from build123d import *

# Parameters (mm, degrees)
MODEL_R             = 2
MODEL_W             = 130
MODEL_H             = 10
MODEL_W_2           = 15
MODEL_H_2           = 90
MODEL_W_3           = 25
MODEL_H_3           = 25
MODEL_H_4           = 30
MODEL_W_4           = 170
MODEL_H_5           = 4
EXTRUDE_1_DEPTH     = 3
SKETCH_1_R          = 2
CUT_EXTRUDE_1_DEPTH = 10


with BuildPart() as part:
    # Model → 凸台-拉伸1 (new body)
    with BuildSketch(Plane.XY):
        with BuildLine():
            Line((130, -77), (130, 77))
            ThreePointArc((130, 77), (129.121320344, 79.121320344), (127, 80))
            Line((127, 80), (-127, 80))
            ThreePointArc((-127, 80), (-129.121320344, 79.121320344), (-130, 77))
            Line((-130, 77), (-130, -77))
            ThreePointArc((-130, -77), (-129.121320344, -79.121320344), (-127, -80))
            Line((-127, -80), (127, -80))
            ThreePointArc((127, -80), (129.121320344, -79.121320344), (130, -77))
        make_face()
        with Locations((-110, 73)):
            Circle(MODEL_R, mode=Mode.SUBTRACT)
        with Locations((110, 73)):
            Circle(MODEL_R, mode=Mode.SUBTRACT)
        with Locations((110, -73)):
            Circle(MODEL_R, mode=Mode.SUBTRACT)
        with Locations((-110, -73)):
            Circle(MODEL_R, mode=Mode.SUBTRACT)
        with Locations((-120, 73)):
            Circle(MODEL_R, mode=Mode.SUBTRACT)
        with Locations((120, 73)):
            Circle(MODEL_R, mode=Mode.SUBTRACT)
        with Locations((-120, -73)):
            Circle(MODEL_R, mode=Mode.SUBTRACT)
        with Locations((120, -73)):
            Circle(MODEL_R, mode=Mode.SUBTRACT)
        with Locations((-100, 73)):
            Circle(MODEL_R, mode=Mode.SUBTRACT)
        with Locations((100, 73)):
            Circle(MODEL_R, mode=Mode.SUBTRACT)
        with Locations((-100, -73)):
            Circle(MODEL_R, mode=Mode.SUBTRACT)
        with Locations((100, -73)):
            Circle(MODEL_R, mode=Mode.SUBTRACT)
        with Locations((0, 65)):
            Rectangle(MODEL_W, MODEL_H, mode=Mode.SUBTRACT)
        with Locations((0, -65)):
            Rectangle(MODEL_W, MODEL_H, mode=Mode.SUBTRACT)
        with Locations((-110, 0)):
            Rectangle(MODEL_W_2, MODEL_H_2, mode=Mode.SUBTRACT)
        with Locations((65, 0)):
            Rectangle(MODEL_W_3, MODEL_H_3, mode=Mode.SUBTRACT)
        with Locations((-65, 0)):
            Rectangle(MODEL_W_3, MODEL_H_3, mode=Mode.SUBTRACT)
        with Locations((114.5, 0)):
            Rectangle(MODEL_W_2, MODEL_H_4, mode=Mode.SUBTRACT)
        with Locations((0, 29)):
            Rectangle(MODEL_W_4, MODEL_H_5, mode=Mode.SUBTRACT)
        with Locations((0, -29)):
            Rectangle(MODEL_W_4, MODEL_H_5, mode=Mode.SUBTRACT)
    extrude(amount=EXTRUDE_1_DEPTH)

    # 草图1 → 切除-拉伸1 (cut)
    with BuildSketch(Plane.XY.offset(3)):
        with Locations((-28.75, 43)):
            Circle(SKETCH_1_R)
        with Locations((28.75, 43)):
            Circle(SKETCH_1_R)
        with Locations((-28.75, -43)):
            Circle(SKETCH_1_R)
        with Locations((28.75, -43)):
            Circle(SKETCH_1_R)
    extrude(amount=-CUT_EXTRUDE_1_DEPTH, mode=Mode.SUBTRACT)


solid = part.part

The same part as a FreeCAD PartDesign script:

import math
import FreeCAD as App
import Part
import Sketcher
Q = App.Units.Quantity

doc = App.newDocument("Part")
params = doc.addObject("Spreadsheet::Sheet", "Params")
for row, (alias, value) in enumerate([
    ("sketch1_diameter", "4 mm"),
    ("sketch1_radius", "3 mm"),
    ("sketch1_width", "254 mm"),
    ("sketch1_width2", "130 mm"),
    ("sketch1_width3", "170 mm"),
    ("pad1_length", "3 mm"),
    ("sketch2_diameter", "4 mm"),
    ("pocket1_length", "10 mm"),
], start=1):
    params.set(f"A{row}", alias)
    params.set(f"B{row}", "=" + value)
    params.setAlias(f"B{row}", alias)

body = doc.addObject("PartDesign::Body", "Body")

# Sketch on XY plane
sketch1 = body.newObject("Sketcher::SketchObject", "Sketch")
sketch1.AttachmentSupport = (doc.getObject("XY_Plane"), [""])
sketch1.MapMode = "FlatFace"
sketch1.addGeometry(Part.LineSegment(App.Vector(130, -77, 0), App.Vector(130, 77, 0)), False)
sketch1.addGeometry(Part.ArcOfCircle(Part.Circle(App.Vector(127, 77, 0), App.Vector(0, 0, 1), 3), math.radians(0), math.radians(90)), False)
sketch1.addGeometry(Part.LineSegment(App.Vector(127, 80, 0), App.Vector(-127, 80, 0)), False)
sketch1.addGeometry(Part.ArcOfCircle(Part.Circle(App.Vector(-127, 77, 0), App.Vector(0, 0, 1), 3), math.radians(90), math.radians(180)), False)
sketch1.addGeometry(Part.LineSegment(App.Vector(-130, 77, 0), App.Vector(-130, -77, 0)), False)
sketch1.addGeometry(Part.ArcOfCircle(Part.Circle(App.Vector(-127, -77, 0), App.Vector(0, 0, 1), 3), math.radians(180), math.radians(270)), False)
sketch1.addGeometry(Part.LineSegment(App.Vector(-127, -80, 0), App.Vector(127, -80, 0)), False)
sketch1.addGeometry(Part.ArcOfCircle(Part.Circle(App.Vector(127, -77, 0), App.Vector(0, 0, 1), 3), math.radians(-90), math.radians(0)), False)
sketch1.addGeometry(Part.Circle(App.Vector(-120, -73, 0), App.Vector(0, 0, 1), 2), False)
sketch1.addGeometry(Part.Circle(App.Vector(-110, -73, 0), App.Vector(0, 0, 1), 2), False)
sketch1.addGeometry(Part.Circle(App.Vector(-100, -73, 0), App.Vector(0, 0, 1), 2), False)
sketch1.addGeometry(Part.LineSegment(App.Vector(65, -70, 0), App.Vector(-65, -70, 0)), False)
sketch1.addGeometry(Part.LineSegment(App.Vector(-65, -70, 0), App.Vector(-65, -60, 0)), False)
sketch1.addGeometry(Part.LineSegment(App.Vector(-65, -60, 0), App.Vector(65, -60, 0)), False)
sketch1.addGeometry(Part.LineSegment(App.Vector(65, -60, 0), App.Vector(65, -70, 0)), False)
sketch1.addGeometry(Part.Circle(App.Vector(100, -73, 0), App.Vector(0, 0, 1), 2), False)
sketch1.addGeometry(Part.Circle(App.Vector(110, -73, 0), App.Vector(0, 0, 1), 2), False)
sketch1.addGeometry(Part.Circle(App.Vector(120, -73, 0), App.Vector(0, 0, 1), 2), False)
sketch1.addGeometry(Part.LineSegment(App.Vector(85, -31, 0), App.Vector(-85, -31, 0)), False)
sketch1.addGeometry(Part.LineSegment(App.Vector(-85, -31, 0), App.Vector(-85, -27, 0)), False)
sketch1.addGeometry(Part.LineSegment(App.Vector(-85, -27, 0), App.Vector(85, -27, 0)), False)
sketch1.addGeometry(Part.LineSegment(App.Vector(85, -27, 0), App.Vector(85, -31, 0)), False)
sketch1.addGeometry(Part.LineSegment(App.Vector(-102.5, -45, 0), App.Vector(-117.5, -45, 0)), False)
sketch1.addGeometry(Part.LineSegment(App.Vector(-117.5, -45, 0), App.Vector(-117.5, 45, 0)), False)
sketch1.addGeometry(Part.LineSegment(App.Vector(-117.5, 45, 0), App.Vector(-102.5, 45, 0)), False)
sketch1.addGeometry(Part.LineSegment(App.Vector(-102.5, 45, 0), App.Vector(-102.5, -45, 0)), False)
sketch1.addGeometry(Part.LineSegment(App.Vector(-52.5, -12.5, 0), App.Vector(-77.5, -12.5, 0)), False)
sketch1.addGeometry(Part.LineSegment(App.Vector(-77.5, -12.5, 0), App.Vector(-77.5, 12.5, 0)), False)
sketch1.addGeometry(Part.LineSegment(App.Vector(-77.5, 12.5, 0), App.Vector(-52.5, 12.5, 0)), False)
sketch1.addGeometry(Part.LineSegment(App.Vector(-52.5, 12.5, 0), App.Vector(-52.5, -12.5, 0)), False)
sketch1.addGeometry(Part.Circle(App.Vector(-120, 73, 0), App.Vector(0, 0, 1), 2), False)
sketch1.addGeometry(Part.Circle(App.Vector(-110, 73, 0), App.Vector(0, 0, 1), 2), False)
sketch1.addGeometry(Part.Circle(App.Vector(-100, 73, 0), App.Vector(0, 0, 1), 2), False)
sketch1.addGeometry(Part.LineSegment(App.Vector(85, 27, 0), App.Vector(-85, 27, 0)), False)
sketch1.addGeometry(Part.LineSegment(App.Vector(-85, 27, 0), App.Vector(-85, 31, 0)), False)
sketch1.addGeometry(Part.LineSegment(App.Vector(-85, 31, 0), App.Vector(85, 31, 0)), False)
sketch1.addGeometry(Part.LineSegment(App.Vector(85, 31, 0), App.Vector(85, 27, 0)), False)
sketch1.addGeometry(Part.LineSegment(App.Vector(77.5, -12.5, 0), App.Vector(52.5, -12.5, 0)), False)
sketch1.addGeometry(Part.LineSegment(App.Vector(52.5, -12.5, 0), App.Vector(52.5, 12.5, 0)), False)
sketch1.addGeometry(Part.LineSegment(App.Vector(52.5, 12.5, 0), App.Vector(77.5, 12.5, 0)), False)
sketch1.addGeometry(Part.LineSegment(App.Vector(77.5, 12.5, 0), App.Vector(77.5, -12.5, 0)), False)
sketch1.addGeometry(Part.LineSegment(App.Vector(122, -15, 0), App.Vector(107, -15, 0)), False)
sketch1.addGeometry(Part.LineSegment(App.Vector(107, -15, 0), App.Vector(107, 15, 0)), False)
sketch1.addGeometry(Part.LineSegment(App.Vector(107, 15, 0), App.Vector(122, 15, 0)), False)
sketch1.addGeometry(Part.LineSegment(App.Vector(122, 15, 0), App.Vector(122, -15, 0)), False)
sketch1.addGeometry(Part.LineSegment(App.Vector(65, 60, 0), App.Vector(-65, 60, 0)), False)
sketch1.addGeometry(Part.LineSegment(App.Vector(-65, 60, 0), App.Vector(-65, 70, 0)), False)
sketch1.addGeometry(Part.LineSegment(App.Vector(-65, 70, 0), App.Vector(65, 70, 0)), False)
sketch1.addGeometry(Part.LineSegment(App.Vector(65, 70, 0), App.Vector(65, 60, 0)), False)
sketch1.addGeometry(Part.Circle(App.Vector(100, 73, 0), App.Vector(0, 0, 1), 2), False)
sketch1.addGeometry(Part.Circle(App.Vector(110, 73, 0), App.Vector(0, 0, 1), 2), False)
sketch1.addGeometry(Part.Circle(App.Vector(120, 73, 0), App.Vector(0, 0, 1), 2), False)
sketch1.addConstraint(Sketcher.Constraint("Tangent", 0, 2, 1, 1))
sketch1.addConstraint(Sketcher.Constraint("Tangent", 1, 2, 2, 1))
sketch1.addConstraint(Sketcher.Constraint("Tangent", 2, 2, 3, 1))
sketch1.addConstraint(Sketcher.Constraint("Tangent", 3, 2, 4, 1))
sketch1.addConstraint(Sketcher.Constraint("Tangent", 4, 2, 5, 1))
sketch1.addConstraint(Sketcher.Constraint("Tangent", 5, 2, 6, 1))
sketch1.addConstraint(Sketcher.Constraint("Tangent", 6, 2, 7, 1))
sketch1.addConstraint(Sketcher.Constraint("Tangent", 7, 2, 0, 1))
sketch1.addConstraint(Sketcher.Constraint("Coincident", 11, 2, 12, 1))
sketch1.addConstraint(Sketcher.Constraint("Coincident", 12, 2, 13, 1))
sketch1.addConstraint(Sketcher.Constraint("Coincident", 13, 2, 14, 1))
sketch1.addConstraint(Sketcher.Constraint("Coincident", 14, 2, 11, 1))
sketch1.addConstraint(Sketcher.Constraint("Coincident", 18, 2, 19, 1))
sketch1.addConstraint(Sketcher.Constraint("Coincident", 19, 2, 20, 1))
sketch1.addConstraint(Sketcher.Constraint("Coincident", 20, 2, 21, 1))
sketch1.addConstraint(Sketcher.Constraint("Coincident", 21, 2, 18, 1))
sketch1.addConstraint(Sketcher.Constraint("Coincident", 22, 2, 23, 1))
sketch1.addConstraint(Sketcher.Constraint("Coincident", 23, 2, 24, 1))
sketch1.addConstraint(Sketcher.Constraint("Coincident", 24, 2, 25, 1))
sketch1.addConstraint(Sketcher.Constraint("Coincident", 25, 2, 22, 1))
sketch1.addConstraint(Sketcher.Constraint("Coincident", 26, 2, 27, 1))
sketch1.addConstraint(Sketcher.Constraint("Coincident", 27, 2, 28, 1))
sketch1.addConstraint(Sketcher.Constraint("Coincident", 28, 2, 29, 1))
sketch1.addConstraint(Sketcher.Constraint("Coincident", 29, 2, 26, 1))
sketch1.addConstraint(Sketcher.Constraint("Coincident", 33, 2, 34, 1))
sketch1.addConstraint(Sketcher.Constraint("Coincident", 34, 2, 35, 1))
sketch1.addConstraint(Sketcher.Constraint("Coincident", 35, 2, 36, 1))
sketch1.addConstraint(Sketcher.Constraint("Coincident", 36, 2, 33, 1))
sketch1.addConstraint(Sketcher.Constraint("Coincident", 37, 2, 38, 1))
sketch1.addConstraint(Sketcher.Constraint("Coincident", 38, 2, 39, 1))
sketch1.addConstraint(Sketcher.Constraint("Coincident", 39, 2, 40, 1))
sketch1.addConstraint(Sketcher.Constraint("Coincident", 40, 2, 37, 1))
sketch1.addConstraint(Sketcher.Constraint("Coincident", 41, 2, 42, 1))
sketch1.addConstraint(Sketcher.Constraint("Coincident", 42, 2, 43, 1))
sketch1.addConstraint(Sketcher.Constraint("Coincident", 43, 2, 44, 1))
sketch1.addConstraint(Sketcher.Constraint("Coincident", 44, 2, 41, 1))
sketch1.addConstraint(Sketcher.Constraint("Coincident", 45, 2, 46, 1))
sketch1.addConstraint(Sketcher.Constraint("Coincident", 46, 2, 47, 1))
sketch1.addConstraint(Sketcher.Constraint("Coincident", 47, 2, 48, 1))
sketch1.addConstraint(Sketcher.Constraint("Coincident", 48, 2, 45, 1))
sketch1.addConstraint(Sketcher.Constraint("Vertical", 0))
sketch1.addConstraint(Sketcher.Constraint("Horizontal", 2))
sketch1.addConstraint(Sketcher.Constraint("Vertical", 4))
sketch1.addConstraint(Sketcher.Constraint("Horizontal", 6))
sketch1.addConstraint(Sketcher.Constraint("Horizontal", 11))
sketch1.addConstraint(Sketcher.Constraint("Vertical", 12))
sketch1.addConstraint(Sketcher.Constraint("Horizontal", 13))
sketch1.addConstraint(Sketcher.Constraint("Vertical", 14))
sketch1.addConstraint(Sketcher.Constraint("Horizontal", 18))
sketch1.addConstraint(Sketcher.Constraint("Vertical", 19))
sketch1.addConstraint(Sketcher.Constraint("Horizontal", 20))
sketch1.addConstraint(Sketcher.Constraint("Vertical", 21))
sketch1.addConstraint(Sketcher.Constraint("Horizontal", 22))
sketch1.addConstraint(Sketcher.Constraint("Vertical", 23))
sketch1.addConstraint(Sketcher.Constraint("Horizontal", 24))
sketch1.addConstraint(Sketcher.Constraint("Vertical", 25))
sketch1.addConstraint(Sketcher.Constraint("Horizontal", 26))
sketch1.addConstraint(Sketcher.Constraint("Vertical", 27))
sketch1.addConstraint(Sketcher.Constraint("Horizontal", 28))
sketch1.addConstraint(Sketcher.Constraint("Vertical", 29))
sketch1.addConstraint(Sketcher.Constraint("Horizontal", 33))
sketch1.addConstraint(Sketcher.Constraint("Vertical", 34))
sketch1.addConstraint(Sketcher.Constraint("Horizontal", 35))
sketch1.addConstraint(Sketcher.Constraint("Vertical", 36))
sketch1.addConstraint(Sketcher.Constraint("Horizontal", 37))
sketch1.addConstraint(Sketcher.Constraint("Vertical", 38))
sketch1.addConstraint(Sketcher.Constraint("Horizontal", 39))
sketch1.addConstraint(Sketcher.Constraint("Vertical", 40))
sketch1.addConstraint(Sketcher.Constraint("Horizontal", 41))
sketch1.addConstraint(Sketcher.Constraint("Vertical", 42))
sketch1.addConstraint(Sketcher.Constraint("Horizontal", 43))
sketch1.addConstraint(Sketcher.Constraint("Vertical", 44))
sketch1.addConstraint(Sketcher.Constraint("Horizontal", 45))
sketch1.addConstraint(Sketcher.Constraint("Vertical", 46))
sketch1.addConstraint(Sketcher.Constraint("Horizontal", 47))
sketch1.addConstraint(Sketcher.Constraint("Vertical", 48))
sketch1.addConstraint(Sketcher.Constraint("Equal", 1, 3))
sketch1.addConstraint(Sketcher.Constraint("Equal", 3, 5))
sketch1.addConstraint(Sketcher.Constraint("Equal", 5, 7))
sketch1.addConstraint(Sketcher.Constraint("Equal", 8, 9))
sketch1.addConstraint(Sketcher.Constraint("Equal", 9, 10))
sketch1.addConstraint(Sketcher.Constraint("Equal", 10, 15))
sketch1.addConstraint(Sketcher.Constraint("Equal", 15, 16))
sketch1.addConstraint(Sketcher.Constraint("Equal", 16, 17))
sketch1.addConstraint(Sketcher.Constraint("Equal", 17, 30))
sketch1.addConstraint(Sketcher.Constraint("Equal", 30, 31))
sketch1.addConstraint(Sketcher.Constraint("Equal", 31, 32))
sketch1.addConstraint(Sketcher.Constraint("Equal", 32, 49))
sketch1.addConstraint(Sketcher.Constraint("Equal", 49, 50))
sketch1.addConstraint(Sketcher.Constraint("Equal", 50, 51))
sketch1.addConstraint(Sketcher.Constraint("Symmetric", 1, 3, 5, 3, -1, 1))
sketch1.addConstraint(Sketcher.Constraint("Symmetric", 17, 3, 30, 3, -1, 1))
sketch1.addConstraint(Sketcher.Constraint("Symmetric", 16, 3, 31, 3, -1, 1))
sketch1.addConstraint(Sketcher.Constraint("Symmetric", 15, 3, 32, 3, -1, 1))
sketch1.addConstraint(Sketcher.Constraint("Symmetric", 10, 3, 49, 3, -1, 1))
sketch1.addConstraint(Sketcher.Constraint("Symmetric", 9, 3, 50, 3, -1, 1))
sketch1.addConstraint(Sketcher.Constraint("Symmetric", 8, 3, 51, 3, -1, 1))
sketch1.addConstraint(Sketcher.Constraint("Symmetric", 20, 2, 33, 2, -1, 1))
sketch1.addConstraint(Sketcher.Constraint("Symmetric", 18, 2, 35, 2, -1, 1))
sketch1.addConstraint(Sketcher.Constraint("Symmetric", 28, 2, 37, 2, -1, 1))
sketch1.addConstraint(Sketcher.Constraint("Symmetric", 26, 2, 39, 2, -1, 1))
sketch1.addConstraint(Sketcher.Constraint("Symmetric", 13, 2, 45, 2, -1, 1))
sketch1.addConstraint(Sketcher.Constraint("Symmetric", 11, 2, 47, 2, -1, 1))
sketch1.addConstraint(Sketcher.Constraint("Symmetric", 10, 3, 15, 3, -2))
sketch1.addConstraint(Sketcher.Constraint("Symmetric", 9, 3, 16, 3, -2))
sketch1.addConstraint(Sketcher.Constraint("Symmetric", 8, 3, 17, 3, -2))
sketch1.addConstraint(Sketcher.Constraint("Horizontal", 8, 3, 9, 3))
sketch1.addConstraint(Sketcher.Constraint("Horizontal", 9, 3, 10, 3))
sketch1.addConstraint(Sketcher.Constraint("Horizontal", 29, 2, 37, 2))
sketch1.addConstraint(Sketcher.Constraint("Vertical", 19, 2, 33, 2))
sketch1.addConstraint(Sketcher.Constraint("Vertical", 12, 2, 45, 2))
sketch1.addConstraint(Sketcher.Constraint("Equal", 24, 41))
sketch1.addConstraint(Sketcher.Constraint("Equal", 39, 27))
sketch1.addConstraint(Sketcher.Constraint("Diameter", 8, Q("4 mm")))
sketch1.addConstraint(Sketcher.Constraint("Radius", 1, Q("3 mm")))
sketch1.addConstraint(Sketcher.Constraint("DistanceX", 2, 2, 2, 1, Q("254 mm")))
sketch1.addConstraint(Sketcher.Constraint("DistanceX", 11, 2, 11, 1, Q("130 mm")))
sketch1.addConstraint(Sketcher.Constraint("DistanceX", 18, 2, 18, 1, Q("170 mm")))
sketch1.addConstraint(Sketcher.Constraint("DistanceX", 22, 2, 22, 1, Q("15 mm")))
sketch1.addConstraint(Sketcher.Constraint("DistanceX", 26, 2, 26, 1, Q("25 mm")))
sketch1.addConstraint(Sketcher.Constraint("DistanceY", 0, 1, 0, 2, Q("154 mm")))
sketch1.addConstraint(Sketcher.Constraint("DistanceY", 12, 1, 12, 2, Q("10 mm")))
sketch1.addConstraint(Sketcher.Constraint("DistanceY", 19, 1, 19, 2, Q("4 mm")))
sketch1.addConstraint(Sketcher.Constraint("DistanceY", 23, 1, 23, 2, Q("90 mm")))
sketch1.addConstraint(Sketcher.Constraint("DistanceY", 42, 1, 42, 2, Q("30 mm")))
sketch1.addConstraint(Sketcher.Constraint("DistanceX", 8, 3, -1, 1, Q("120 mm")))
sketch1.addConstraint(Sketcher.Constraint("DistanceY", 8, 3, -1, 1, Q("73 mm")))
sketch1.addConstraint(Sketcher.Constraint("DistanceX", 9, 3, -1, 1, Q("110 mm")))
sketch1.addConstraint(Sketcher.Constraint("DistanceX", 10, 3, -1, 1, Q("100 mm")))
sketch1.addConstraint(Sketcher.Constraint("DistanceY", 11, 2, -1, 1, Q("70 mm")))
sketch1.addConstraint(Sketcher.Constraint("DistanceY", 18, 2, -1, 1, Q("31 mm")))
sketch1.addConstraint(Sketcher.Constraint("DistanceY", 22, 2, -1, 1, Q("45 mm")))
sketch1.addConstraint(Sketcher.Constraint("DistanceX", -1, 1, 41, 2, Q("107 mm")))
sketch1.addConstraint(Sketcher.Constraint("DistanceY", 41, 2, -1, 1, Q("15 mm")))
sketch1.addConstraint(Sketcher.Constraint("DistanceX", 25, 2, 26, 2, Q("25 mm")))
sketch1.addConstraint(Sketcher.Constraint("DistanceX", 22, 2, -1, 1, Q("117.5 mm")))
sketch1.setExpression("Constraints[113]", "Params.sketch1_diameter")
sketch1.setExpression("Constraints[114]", "Params.sketch1_radius")
sketch1.setExpression("Constraints[115]", "Params.sketch1_width")
sketch1.setExpression("Constraints[116]", "Params.sketch1_width2")
sketch1.setExpression("Constraints[117]", "Params.sketch1_width3")
pad1 = body.newObject("PartDesign::Pad", "Pad")
pad1.Profile = sketch1
pad1.setExpression("Length", "Params.pad1_length")

# Sketch on XY plane
sketch2 = body.newObject("Sketcher::SketchObject", "Sketch001")
sketch2.AttachmentSupport = (doc.getObject("XY_Plane"), [""])
sketch2.MapMode = "FlatFace"
sketch2.AttachmentOffset = App.Placement(App.Vector(0, 0, 3), App.Rotation())
sketch2.addGeometry(Part.Circle(App.Vector(-28.75, 43, 0), App.Vector(0, 0, 1), 2), False)
sketch2.addGeometry(Part.Circle(App.Vector(28.75, 43, 0), App.Vector(0, 0, 1), 2), False)
sketch2.addGeometry(Part.Circle(App.Vector(-28.75, -43, 0), App.Vector(0, 0, 1), 2), False)
sketch2.addGeometry(Part.Circle(App.Vector(28.75, -43, 0), App.Vector(0, 0, 1), 2), False)
sketch2.addConstraint(Sketcher.Constraint("Equal", 0, 1))
sketch2.addConstraint(Sketcher.Constraint("Equal", 1, 2))
sketch2.addConstraint(Sketcher.Constraint("Equal", 2, 3))
sketch2.addConstraint(Sketcher.Constraint("Symmetric", 1, 3, 2, 3, -1, 1))
sketch2.addConstraint(Sketcher.Constraint("Symmetric", 0, 3, 3, 3, -1, 1))
sketch2.addConstraint(Sketcher.Constraint("Symmetric", 0, 3, 1, 3, -2))
sketch2.addConstraint(Sketcher.Constraint("Diameter", 0, Q("4 mm")))
sketch2.addConstraint(Sketcher.Constraint("DistanceY", -1, 1, 0, 3, Q("43 mm")))
sketch2.addConstraint(Sketcher.Constraint("DistanceX", 0, 3, 1, 3, Q("57.5 mm")))
sketch2.setExpression("Constraints[6]", "Params.sketch2_diameter")
pocket1 = body.newObject("PartDesign::Pocket", "Pocket")
pocket1.Profile = sketch2
pocket1.setExpression("Length", "Params.pocket1_length")

doc.recompute()
